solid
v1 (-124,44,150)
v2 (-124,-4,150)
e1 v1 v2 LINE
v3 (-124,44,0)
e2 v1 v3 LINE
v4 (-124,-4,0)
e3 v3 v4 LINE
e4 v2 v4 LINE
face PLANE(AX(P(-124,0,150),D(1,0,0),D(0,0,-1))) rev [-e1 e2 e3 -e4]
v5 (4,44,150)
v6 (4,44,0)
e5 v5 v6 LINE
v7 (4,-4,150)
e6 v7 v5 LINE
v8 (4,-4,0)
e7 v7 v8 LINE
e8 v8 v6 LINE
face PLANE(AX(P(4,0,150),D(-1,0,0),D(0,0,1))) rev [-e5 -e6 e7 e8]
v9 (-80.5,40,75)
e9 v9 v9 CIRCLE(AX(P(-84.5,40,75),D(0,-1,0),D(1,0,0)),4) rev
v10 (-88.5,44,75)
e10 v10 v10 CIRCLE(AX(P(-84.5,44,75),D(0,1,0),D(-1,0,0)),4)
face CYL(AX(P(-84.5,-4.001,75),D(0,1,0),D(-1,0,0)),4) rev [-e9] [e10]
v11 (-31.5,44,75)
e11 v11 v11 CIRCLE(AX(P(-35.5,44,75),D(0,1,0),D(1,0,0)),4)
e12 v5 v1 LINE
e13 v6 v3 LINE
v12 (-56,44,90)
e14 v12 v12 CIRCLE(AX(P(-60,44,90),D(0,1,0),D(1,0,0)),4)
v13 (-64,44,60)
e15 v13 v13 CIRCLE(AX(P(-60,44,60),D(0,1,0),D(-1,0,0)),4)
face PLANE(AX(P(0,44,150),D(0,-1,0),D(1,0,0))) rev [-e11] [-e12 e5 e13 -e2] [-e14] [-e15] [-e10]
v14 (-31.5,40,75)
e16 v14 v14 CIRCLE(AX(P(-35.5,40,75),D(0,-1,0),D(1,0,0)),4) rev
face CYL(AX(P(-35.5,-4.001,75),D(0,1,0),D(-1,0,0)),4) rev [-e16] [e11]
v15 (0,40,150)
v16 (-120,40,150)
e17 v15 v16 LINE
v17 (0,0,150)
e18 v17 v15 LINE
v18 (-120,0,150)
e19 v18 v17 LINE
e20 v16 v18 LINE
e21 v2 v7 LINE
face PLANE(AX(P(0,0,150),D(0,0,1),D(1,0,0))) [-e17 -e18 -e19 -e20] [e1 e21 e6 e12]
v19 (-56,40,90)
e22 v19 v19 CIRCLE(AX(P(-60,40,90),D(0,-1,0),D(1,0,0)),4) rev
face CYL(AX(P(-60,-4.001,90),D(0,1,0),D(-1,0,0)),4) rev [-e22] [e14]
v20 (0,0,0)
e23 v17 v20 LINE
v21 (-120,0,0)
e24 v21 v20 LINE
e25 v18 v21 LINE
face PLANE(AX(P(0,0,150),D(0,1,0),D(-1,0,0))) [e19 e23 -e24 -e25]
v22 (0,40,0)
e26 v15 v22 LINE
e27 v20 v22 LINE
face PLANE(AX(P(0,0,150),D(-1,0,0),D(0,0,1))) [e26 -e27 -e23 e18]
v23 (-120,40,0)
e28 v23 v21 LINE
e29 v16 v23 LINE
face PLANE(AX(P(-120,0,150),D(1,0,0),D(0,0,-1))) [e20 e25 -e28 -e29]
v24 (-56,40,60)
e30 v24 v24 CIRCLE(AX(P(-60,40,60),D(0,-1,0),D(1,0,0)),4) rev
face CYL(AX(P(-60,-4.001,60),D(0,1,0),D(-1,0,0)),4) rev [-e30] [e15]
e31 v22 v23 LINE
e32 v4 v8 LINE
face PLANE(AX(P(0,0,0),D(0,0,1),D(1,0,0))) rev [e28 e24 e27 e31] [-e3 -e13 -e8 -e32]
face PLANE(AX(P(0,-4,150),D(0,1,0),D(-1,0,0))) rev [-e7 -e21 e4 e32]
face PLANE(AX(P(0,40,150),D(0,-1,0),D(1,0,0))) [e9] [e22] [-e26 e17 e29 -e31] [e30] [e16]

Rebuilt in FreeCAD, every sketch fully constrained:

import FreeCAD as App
import Part
import Sketcher


def add_polygon(sketch, points):
    """Adds a closed chain of lines whose ends are joined by coincident constraints."""
    first, n = sketch.GeometryCount, len(points)
    for a, b in zip(points, points[1:] + points[:1]):
        sketch.addGeometry(Part.LineSegment(App.Vector(*a, 0), App.Vector(*b, 0)), False)
    for i in range(n):
        sketch.addConstraint(Sketcher.Constraint("Coincident", first + i, 2, first + (i + 1) % n, 1))

doc = App.newDocument("Part")
body = doc.addObject("PartDesign::Body", "Body")

sketch1 = body.newObject("Sketcher::SketchObject", "Sketch")
sketch1.AttachmentSupport = (doc.getObject("XY_Plane"), [""])
sketch1.MapMode = "FlatFace"
add_polygon(sketch1, [(-124, 44), (-124, -4), (4, -4), (4, 44)])
add_polygon(sketch1, [(0, 0), (-120, 0), (-120, 40), (0, 40)])
sketch1.addConstraint([
    Sketcher.Constraint("Vertical", 0),
    Sketcher.Constraint("Horizontal", 1),
    Sketcher.Constraint("Vertical", 2),
    Sketcher.Constraint("Horizontal", 3),
    Sketcher.Constraint("Horizontal", 4),
    Sketcher.Constraint("Vertical", 5),
    Sketcher.Constraint("Horizontal", 6),
    Sketcher.Constraint("Vertical", 7),
    Sketcher.Constraint("Coincident", 7, 2, -1, 1),
    Sketcher.Constraint("DistanceX", 1, 1, 1, 2, 128.0),
    Sketcher.Constraint("DistanceX", 4, 2, 4, 1, 120.0),
    Sketcher.Constraint("DistanceY", 0, 2, 0, 1, 48.0),
    Sketcher.Constraint("DistanceY", 5, 1, 5, 2, 40.0),
    Sketcher.Constraint("DistanceX", 0, 2, -1, 1, 124.0),
    Sketcher.Constraint("DistanceY", 0, 2, -1, 1, 4.0),
])
pad1 = body.newObject("PartDesign::Pad", "Pad")
pad1.Profile = sketch1
pad1.Length = 150

sketch2 = body.newObject("Sketcher::SketchObject", "Sketch001")
sketch2.AttachmentSupport = (doc.getObject("XZ_Plane"), [""])
sketch2.MapMode = "FlatFace"
sketch2.AttachmentOffset = App.Placement(App.Vector(0, 0, -44), App.Rotation())
sketch2.addGeometry(Part.Circle(App.Vector(-84.5, 75, 0), App.Vector(0, 0, 1), 4), False)
sketch2.addConstraint([
    Sketcher.Constraint("Diameter", 0, 8.0),
    Sketcher.Constraint("DistanceY", -1, 1, 0, 3, 75.0),
    Sketcher.Constraint("DistanceX", 0, 3, -1, 1, 84.5),
])
pocket1 = body.newObject("PartDesign::Pocket", "Pocket")
pocket1.Profile = sketch2
pocket1.Type = "UpToFirst"
pocket1.Reversed = True

sketch3 = body.newObject("Sketcher::SketchObject", "Sketch002")
sketch3.AttachmentSupport = (doc.getObject("XZ_Plane"), [""])
sketch3.MapMode = "FlatFace"
sketch3.AttachmentOffset = App.Placement(App.Vector(0, 0, -44), App.Rotation())
sketch3.addGeometry(Part.Circle(App.Vector(-35.5, 75, 0), App.Vector(0, 0, 1), 4), False)
sketch3.addConstraint([
    Sketcher.Constraint("Diameter", 0, 8.0),
    Sketcher.Constraint("DistanceY", -1, 1, 0, 3, 75.0),
    Sketcher.Constraint("DistanceX", 0, 3, -1, 1, 35.5),
])
pocket2 = body.newObject("PartDesign::Pocket", "Pocket001")
pocket2.Profile = sketch3
pocket2.Type = "UpToFirst"
pocket2.Reversed = True

sketch4 = body.newObject("Sketcher::SketchObject", "Sketch003")
sketch4.AttachmentSupport = (doc.getObject("XZ_Plane"), [""])
sketch4.MapMode = "FlatFace"
sketch4.AttachmentOffset = App.Placement(App.Vector(0, 0, -44), App.Rotation())
sketch4.addGeometry(Part.Circle(App.Vector(-60, 60, 0), App.Vector(0, 0, 1), 4), False)
sketch4.addConstraint([
    Sketcher.Constraint("Diameter", 0, 8.0),
    Sketcher.Constraint("DistanceX", 0, 3, -1, 1, 60.0),
    Sketcher.Constraint("DistanceY", -1, 1, 0, 3, 60.0),
])
pocket3 = body.newObject("PartDesign::Pocket", "Pocket002")
pocket3.Profile = sketch4
pocket3.Type = "UpToFirst"
pocket3.Reversed = True

sketch5 = body.newObject("Sketcher::SketchObject", "Sketch004")
sketch5.AttachmentSupport = (doc.getObject("XZ_Plane"), [""])
sketch5.MapMode = "FlatFace"
sketch5.AttachmentOffset = App.Placement(App.Vector(0, 0, -44), App.Rotation())
sketch5.addGeometry(Part.Circle(App.Vector(-60, 90, 0), App.Vector(0, 0, 1), 4), False)
sketch5.addConstraint([
    Sketcher.Constraint("Diameter", 0, 8.0),
    Sketcher.Constraint("DistanceX", 0, 3, -1, 1, 60.0),
    Sketcher.Constraint("DistanceY", -1, 1, 0, 3, 90.0),
])
pocket4 = body.newObject("PartDesign::Pocket", "Pocket003")
pocket4.Profile = sketch5
pocket4.Type = "UpToFirst"
pocket4.Reversed = True

doc.recompute()
